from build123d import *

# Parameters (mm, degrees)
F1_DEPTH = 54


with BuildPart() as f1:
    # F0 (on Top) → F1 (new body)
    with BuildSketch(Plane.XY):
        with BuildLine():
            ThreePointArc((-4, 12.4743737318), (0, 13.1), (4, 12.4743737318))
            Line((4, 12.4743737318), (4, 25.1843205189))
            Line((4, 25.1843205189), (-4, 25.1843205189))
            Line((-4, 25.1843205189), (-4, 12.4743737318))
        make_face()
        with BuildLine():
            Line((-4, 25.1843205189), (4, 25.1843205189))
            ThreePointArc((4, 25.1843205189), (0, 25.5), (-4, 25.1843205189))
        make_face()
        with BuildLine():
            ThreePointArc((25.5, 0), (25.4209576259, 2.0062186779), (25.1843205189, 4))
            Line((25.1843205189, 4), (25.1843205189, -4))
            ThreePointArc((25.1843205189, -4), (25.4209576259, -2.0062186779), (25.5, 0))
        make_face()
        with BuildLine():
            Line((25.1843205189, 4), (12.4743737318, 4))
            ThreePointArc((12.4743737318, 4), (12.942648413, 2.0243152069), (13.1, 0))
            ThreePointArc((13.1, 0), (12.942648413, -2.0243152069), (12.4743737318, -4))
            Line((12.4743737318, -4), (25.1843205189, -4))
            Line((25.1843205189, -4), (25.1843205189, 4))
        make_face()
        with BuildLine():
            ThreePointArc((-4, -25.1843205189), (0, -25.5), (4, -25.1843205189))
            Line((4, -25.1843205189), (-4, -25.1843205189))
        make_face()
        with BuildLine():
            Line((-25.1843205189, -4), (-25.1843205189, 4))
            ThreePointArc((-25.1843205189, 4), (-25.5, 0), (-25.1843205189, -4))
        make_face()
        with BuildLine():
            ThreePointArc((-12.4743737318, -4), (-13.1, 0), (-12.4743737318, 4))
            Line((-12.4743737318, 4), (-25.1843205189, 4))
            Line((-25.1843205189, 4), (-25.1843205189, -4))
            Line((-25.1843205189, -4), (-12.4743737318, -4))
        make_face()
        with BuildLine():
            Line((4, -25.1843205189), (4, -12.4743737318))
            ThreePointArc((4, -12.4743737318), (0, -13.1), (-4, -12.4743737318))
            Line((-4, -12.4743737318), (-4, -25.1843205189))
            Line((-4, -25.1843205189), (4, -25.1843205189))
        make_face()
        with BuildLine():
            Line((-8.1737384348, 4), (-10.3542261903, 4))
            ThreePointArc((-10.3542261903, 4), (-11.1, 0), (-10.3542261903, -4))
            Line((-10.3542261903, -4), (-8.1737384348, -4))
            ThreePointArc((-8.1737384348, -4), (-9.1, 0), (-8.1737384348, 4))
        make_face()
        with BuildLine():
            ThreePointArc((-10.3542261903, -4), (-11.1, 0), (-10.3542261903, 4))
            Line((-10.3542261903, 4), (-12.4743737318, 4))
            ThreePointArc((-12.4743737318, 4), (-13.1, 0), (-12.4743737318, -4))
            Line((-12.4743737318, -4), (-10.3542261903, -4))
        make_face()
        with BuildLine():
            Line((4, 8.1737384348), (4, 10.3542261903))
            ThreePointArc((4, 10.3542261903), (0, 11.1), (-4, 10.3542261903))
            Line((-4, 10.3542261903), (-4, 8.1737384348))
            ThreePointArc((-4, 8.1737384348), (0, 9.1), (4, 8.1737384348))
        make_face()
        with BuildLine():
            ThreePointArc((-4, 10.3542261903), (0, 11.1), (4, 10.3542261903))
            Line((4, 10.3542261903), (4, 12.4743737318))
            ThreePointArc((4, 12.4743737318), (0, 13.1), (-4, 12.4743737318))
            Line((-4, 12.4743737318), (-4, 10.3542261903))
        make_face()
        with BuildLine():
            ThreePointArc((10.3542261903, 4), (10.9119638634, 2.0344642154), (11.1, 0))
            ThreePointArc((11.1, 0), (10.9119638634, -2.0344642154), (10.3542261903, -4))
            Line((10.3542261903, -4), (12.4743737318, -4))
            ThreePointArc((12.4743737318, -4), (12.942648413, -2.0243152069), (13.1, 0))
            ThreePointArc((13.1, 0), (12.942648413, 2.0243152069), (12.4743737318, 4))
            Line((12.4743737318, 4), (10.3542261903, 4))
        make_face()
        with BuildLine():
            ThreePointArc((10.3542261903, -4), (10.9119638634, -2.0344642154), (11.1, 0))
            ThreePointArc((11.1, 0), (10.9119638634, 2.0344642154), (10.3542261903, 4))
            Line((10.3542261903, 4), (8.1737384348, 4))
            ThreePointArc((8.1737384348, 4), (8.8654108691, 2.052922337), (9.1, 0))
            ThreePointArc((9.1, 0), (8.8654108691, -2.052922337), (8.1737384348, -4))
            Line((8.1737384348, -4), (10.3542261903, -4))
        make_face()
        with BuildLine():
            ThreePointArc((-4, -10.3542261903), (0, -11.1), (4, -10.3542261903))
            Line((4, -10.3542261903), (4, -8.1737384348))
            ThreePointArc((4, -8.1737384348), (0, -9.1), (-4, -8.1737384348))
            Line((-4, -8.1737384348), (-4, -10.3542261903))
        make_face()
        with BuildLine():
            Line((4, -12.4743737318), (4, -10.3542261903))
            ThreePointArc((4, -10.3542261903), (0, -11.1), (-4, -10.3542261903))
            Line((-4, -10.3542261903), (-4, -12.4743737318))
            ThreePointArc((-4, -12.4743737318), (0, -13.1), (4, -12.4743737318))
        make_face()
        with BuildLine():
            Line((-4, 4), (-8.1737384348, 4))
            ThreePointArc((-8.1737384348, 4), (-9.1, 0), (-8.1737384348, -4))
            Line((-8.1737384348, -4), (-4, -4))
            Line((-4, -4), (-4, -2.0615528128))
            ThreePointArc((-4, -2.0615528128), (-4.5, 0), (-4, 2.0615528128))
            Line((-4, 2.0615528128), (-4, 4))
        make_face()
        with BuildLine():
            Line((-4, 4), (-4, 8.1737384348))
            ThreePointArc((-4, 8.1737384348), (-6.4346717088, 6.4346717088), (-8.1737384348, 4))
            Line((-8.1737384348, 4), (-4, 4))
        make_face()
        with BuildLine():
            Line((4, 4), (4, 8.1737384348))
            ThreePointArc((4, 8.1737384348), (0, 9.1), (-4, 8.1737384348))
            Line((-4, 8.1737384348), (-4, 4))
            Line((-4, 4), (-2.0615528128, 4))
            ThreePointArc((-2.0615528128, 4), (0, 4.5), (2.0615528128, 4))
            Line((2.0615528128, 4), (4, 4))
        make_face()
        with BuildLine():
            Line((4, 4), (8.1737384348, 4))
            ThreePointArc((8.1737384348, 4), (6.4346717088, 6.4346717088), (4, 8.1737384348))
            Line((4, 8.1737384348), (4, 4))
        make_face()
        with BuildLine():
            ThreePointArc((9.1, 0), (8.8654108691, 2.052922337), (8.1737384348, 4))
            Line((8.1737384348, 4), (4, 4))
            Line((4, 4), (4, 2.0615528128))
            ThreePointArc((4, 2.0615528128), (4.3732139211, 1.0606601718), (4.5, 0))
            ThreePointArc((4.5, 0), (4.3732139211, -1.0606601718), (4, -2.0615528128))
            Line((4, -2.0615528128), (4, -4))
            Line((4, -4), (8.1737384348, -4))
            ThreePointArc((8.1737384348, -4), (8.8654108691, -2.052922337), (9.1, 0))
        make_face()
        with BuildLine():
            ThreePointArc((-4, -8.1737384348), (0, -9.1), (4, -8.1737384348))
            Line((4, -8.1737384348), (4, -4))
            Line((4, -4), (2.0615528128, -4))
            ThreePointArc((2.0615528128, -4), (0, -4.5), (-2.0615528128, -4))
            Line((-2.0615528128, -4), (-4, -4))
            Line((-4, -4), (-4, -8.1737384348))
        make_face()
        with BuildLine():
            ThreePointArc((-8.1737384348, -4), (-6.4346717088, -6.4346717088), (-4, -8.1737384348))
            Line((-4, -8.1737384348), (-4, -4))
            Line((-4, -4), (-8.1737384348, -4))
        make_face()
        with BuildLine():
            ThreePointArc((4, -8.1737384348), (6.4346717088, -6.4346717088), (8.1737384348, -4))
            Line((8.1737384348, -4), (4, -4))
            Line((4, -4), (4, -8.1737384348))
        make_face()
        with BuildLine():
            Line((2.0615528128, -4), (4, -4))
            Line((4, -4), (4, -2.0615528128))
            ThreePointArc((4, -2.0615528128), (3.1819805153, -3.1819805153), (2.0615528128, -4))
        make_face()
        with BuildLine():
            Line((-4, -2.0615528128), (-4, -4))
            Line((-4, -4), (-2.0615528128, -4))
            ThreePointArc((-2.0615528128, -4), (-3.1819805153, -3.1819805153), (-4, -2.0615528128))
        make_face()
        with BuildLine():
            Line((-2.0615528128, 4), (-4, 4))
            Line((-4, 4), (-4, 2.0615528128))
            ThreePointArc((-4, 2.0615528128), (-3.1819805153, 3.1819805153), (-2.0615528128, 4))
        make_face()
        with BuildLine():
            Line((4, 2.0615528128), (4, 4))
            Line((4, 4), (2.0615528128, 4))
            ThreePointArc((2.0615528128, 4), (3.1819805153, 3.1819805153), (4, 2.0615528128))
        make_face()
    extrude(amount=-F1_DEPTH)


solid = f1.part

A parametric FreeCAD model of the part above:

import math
import FreeCAD as App
import Part
import Sketcher
from FreeCAD import Vector

doc = App.newDocument("Part")
params = doc.addObject("Spreadsheet::Sheet", "Params")
for row, (alias, value) in enumerate([
    ("sketch1_radius", "9.1 mm"),
    ("sketch1_radius2", "25.5 mm"),
    ("sketch1_radius3", "4.5 mm"),
    ("pad1_length", "54 mm"),
], start=1):
    params.set(f"A{row}", alias)
    params.set(f"B{row}", "=" + value)
    params.setAlias(f"B{row}", alias)

body = doc.addObject("PartDesign::Body", "Body")

# Sketch on XY plane
sketch1 = body.newObject("Sketcher::SketchObject", "Sketch")
sketch1.AttachmentSupport = (doc.getObject("XY_Plane"), [""])
sketch1.MapMode = "FlatFace"
sketch1.addGeometry([
    Part.LineSegment(Vector(4, -25.184321, 0), Vector(4, -8.173738, 0)),  # 0
    Part.ArcOfCircle(Part.Circle(Vector(0, 0, 0), Vector(0, 0, 1), 9.1), math.radians(-63.924161), math.radians(-26.075839)),  # 1
    Part.LineSegment(Vector(8.173738, -4, 0), Vector(25.184321, -4, 0)),  # 2
    Part.ArcOfCircle(Part.Circle(Vector(0, 0, 0), Vector(0, 0, 1), 25.5), math.radians(-9.024845), math.radians(0)),  # 3
    Part.ArcOfCircle(Part.Circle(Vector(0, 0, 0), Vector(0, 0, 1), 25.5), math.radians(0), math.radians(9.024845)),  # 4
    Part.LineSegment(Vector(25.184321, 4, 0), Vector(8.173738, 4, 0)),  # 5
    Part.ArcOfCircle(Part.Circle(Vector(0, 0, 0), Vector(0, 0, 1), 9.1), math.radians(26.075839), math.radians(63.924161)),  # 6
    Part.LineSegment(Vector(4, 8.173738, 0), Vector(4, 25.184321, 0)),  # 7
    Part.ArcOfCircle(Part.Circle(Vector(0, 0, 0), Vector(0, 0, 1), 25.5), math.radians(80.975155), math.radians(99.024845)),  # 8
    Part.LineSegment(Vector(-4, 25.184321, 0), Vector(-4, 8.173738, 0)),  # 9
    Part.ArcOfCircle(Part.Circle(Vector(0, 0, 0), Vector(0, 0, 1), 9.1), math.radians(116.075839), math.radians(153.924161)),  # 10
    Part.LineSegment(Vector(-8.173738, 4, 0), Vector(-25.184321, 4, 0)),  # 11
    Part.ArcOfCircle(Part.Circle(Vector(0, 0, 0), Vector(0, 0, 1), 25.5), math.radians(170.975155), math.radians(189.024845)),  # 12
    Part.LineSegment(Vector(-25.184321, -4, 0), Vector(-8.173738, -4, 0)),  # 13
    Part.ArcOfCircle(Part.Circle(Vector(0, 0, 0), Vector(0, 0, 1), 9.1), math.radians(-153.924161), math.radians(-116.075839)),  # 14
    Part.LineSegment(Vector(-4, -8.173738, 0), Vector(-4, -25.184321, 0)),  # 15
    Part.ArcOfCircle(Part.Circle(Vector(0, 0, 0), Vector(0, 0, 1), 25.5), math.radians(-99.024845), math.radians(-80.975155)),  # 16
    Part.ArcOfCircle(Part.Circle(Vector(0, 0, 0), Vector(0, 0, 1), 4.5), math.radians(-117.266044), math.radians(-62.733956)),  # 17
    Part.ArcOfCircle(Part.Circle(Vector(0, 0, 0), Vector(0, 0, 1), 4.5), math.radians(-152.733956), math.radians(-117.266044)),  # 18
    Part.ArcOfCircle(Part.Circle(Vector(0, 0, 0), Vector(0, 0, 1), 4.5), math.radians(152.733956), math.radians(207.266044)),  # 19
    Part.ArcOfCircle(Part.Circle(Vector(0, 0, 0), Vector(0, 0, 1), 4.5), math.radians(117.266044), math.radians(152.733956)),  # 20
    Part.ArcOfCircle(Part.Circle(Vector(0, 0, 0), Vector(0, 0, 1), 4.5), math.radians(62.733956), math.radians(117.266044)),  # 21
    Part.ArcOfCircle(Part.Circle(Vector(0, 0, 0), Vector(0, 0, 1), 4.5), math.radians(27.266044), math.radians(62.733956)),  # 22
    Part.ArcOfCircle(Part.Circle(Vector(0, 0, 0), Vector(0, 0, 1), 4.5), math.radians(0), math.radians(27.266044)),  # 23
    Part.ArcOfCircle(Part.Circle(Vector(0, 0, 0), Vector(0, 0, 1), 4.5), math.radians(-27.266044), math.radians(0)),  # 24
    Part.ArcOfCircle(Part.Circle(Vector(0, 0, 0), Vector(0, 0, 1), 4.5), math.radians(-62.733956), math.radians(-27.266044)),  # 25
], False)
sketch1.addConstraint([
    Sketcher.Constraint("Coincident", 0, 2, 1, 1),
    Sketcher.Constraint("Coincident", 1, 2, 2, 1),
    Sketcher.Constraint("Coincident", 2, 2, 3, 1),
    Sketcher.Constraint("Tangent", 3, 2, 4, 1),
    Sketcher.Constraint("Coincident", 4, 2, 5, 1),
    Sketcher.Constraint("Coincident", 5, 2, 6, 1),
    Sketcher.Constraint("Coincident", 6, 2, 7, 1),
    Sketcher.Constraint("Coincident", 7, 2, 8, 1),
    Sketcher.Constraint("Coincident", 8, 2, 9, 1),
    Sketcher.Constraint("Coincident", 9, 2, 10, 1),
    Sketcher.Constraint("Coincident", 10, 2, 11, 1),
    Sketcher.Constraint("Coincident", 11, 2, 12, 1),
    Sketcher.Constraint("Coincident", 12, 2, 13, 1),
    Sketcher.Constraint("Coincident", 13, 2, 14, 1),
    Sketcher.Constraint("Coincident", 14, 2, 15, 1),
    Sketcher.Constraint("Coincident", 15, 2, 16, 1),
    Sketcher.Constraint("Coincident", 16, 2, 0, 1),
    Sketcher.Constraint("Tangent", 17, 1, 18, 2),
    Sketcher.Constraint("Tangent", 18, 1, 19, 2),
    Sketcher.Constraint("Tangent", 19, 1, 20, 2),
    Sketcher.Constraint("Tangent", 20, 1, 21, 2),
    Sketcher.Constraint("Tangent", 21, 1, 22, 2),
    Sketcher.Constraint("Tangent", 22, 1, 23, 2),
    Sketcher.Constraint("Tangent", 23, 1, 24, 2),
    Sketcher.Constraint("Tangent", 24, 1, 25, 2),
    Sketcher.Constraint("Tangent", 25, 1, 17, 2),
    Sketcher.Constraint("Vertical", 0),
    Sketcher.Constraint("Horizontal", 2),
    Sketcher.Constraint("Horizontal", 5),
    Sketcher.Constraint("Vertical", 7),
    Sketcher.Constraint("Vertical", 9),
    Sketcher.Constraint("Horizontal", 11),
    Sketcher.Constraint("Horizontal", 13),
    Sketcher.Constraint("Vertical", 15),
    Sketcher.Constraint("Coincident", 1, 3, -1, 1),
    Sketcher.Constraint("Coincident", 3, 3, -1, 1),
    Sketcher.Constraint("Coincident", 6, 3, -1, 1),
    Sketcher.Constraint("Coincident", 8, 3, -1, 1),
    Sketcher.Constraint("Coincident", 10, 3, -1, 1),
    Sketcher.Constraint("Coincident", 12, 3, -1, 1),
    Sketcher.Constraint("Coincident", 14, 3, -1, 1),
    Sketcher.Constraint("Coincident", 16, 3, -1, 1),
    Sketcher.Constraint("Coincident", 17, 3, -1, 1),
    Sketcher.Constraint("Coincident", 19, 3, -1, 1),
    Sketcher.Constraint("Coincident", 21, 3, -1, 1),
    Sketcher.Constraint("Coincident", 23, 3, -1, 1),
    Sketcher.Constraint("Equal", 3, 4),
    Sketcher.Constraint("Equal", 1, 6),
    Sketcher.Constraint("Equal", 4, 8),
    Sketcher.Constraint("Equal", 6, 10),
    Sketcher.Constraint("Equal", 8, 12),
    Sketcher.Constraint("Equal", 10, 14),
    Sketcher.Constraint("Equal", 12, 16),
    Sketcher.Constraint("PointOnObject", 3, 2, -1),
    Sketcher.Constraint("PointOnObject", 23, 1, -1),
    Sketcher.Constraint("Horizontal", 7, 2, 8, 2),
    Sketcher.Constraint("Horizontal", 5, 2, 10, 2),
    Sketcher.Constraint("Horizontal", 2, 2, 12, 2),
    Sketcher.Constraint("Horizontal", 0, 2, 14, 2),
    Sketcher.Constraint("Horizontal", 13, 2, 17, 1),
    Sketcher.Constraint("Horizontal", 11, 2, 20, 1),
    Sketcher.Constraint("Horizontal", 20, 1, 21, 1),
    Sketcher.Constraint("Horizontal", 19, 1, 22, 1),
    Sketcher.Constraint("Horizontal", 18, 1, 24, 1),
    Sketcher.Constraint("Horizontal", 17, 1, 25, 1),
    Sketcher.Constraint("Vertical", 2, 2, 4, 2),
    Sketcher.Constraint("Vertical", 0, 2, 6, 2),
    Sketcher.Constraint("Vertical", 15, 2, 18, 1),
    Sketcher.Constraint("Vertical", 18, 1, 19, 1),
    Sketcher.Constraint("Equal", 13, 0),
    Sketcher.Constraint("Radius", 1, 9.1),
    Sketcher.Constraint("Radius", 3, 25.5),
    Sketcher.Constraint("Radius", 17, 4.5),
    Sketcher.Constraint("DistanceX", -1, 1, 0, 2, 4.0),
])
sketch1.setExpression("Constraints[70]", "Params.sketch1_radius")
sketch1.setExpression("Constraints[71]", "Params.sketch1_radius2")
sketch1.setExpression("Constraints[72]", "Params.sketch1_radius3")
pad1 = body.newObject("PartDesign::Pad", "Pad")
pad1.Profile = sketch1
pad1.setExpression("Length", "Params.pad1_length")
pad1.Reversed = True

doc.recompute()
